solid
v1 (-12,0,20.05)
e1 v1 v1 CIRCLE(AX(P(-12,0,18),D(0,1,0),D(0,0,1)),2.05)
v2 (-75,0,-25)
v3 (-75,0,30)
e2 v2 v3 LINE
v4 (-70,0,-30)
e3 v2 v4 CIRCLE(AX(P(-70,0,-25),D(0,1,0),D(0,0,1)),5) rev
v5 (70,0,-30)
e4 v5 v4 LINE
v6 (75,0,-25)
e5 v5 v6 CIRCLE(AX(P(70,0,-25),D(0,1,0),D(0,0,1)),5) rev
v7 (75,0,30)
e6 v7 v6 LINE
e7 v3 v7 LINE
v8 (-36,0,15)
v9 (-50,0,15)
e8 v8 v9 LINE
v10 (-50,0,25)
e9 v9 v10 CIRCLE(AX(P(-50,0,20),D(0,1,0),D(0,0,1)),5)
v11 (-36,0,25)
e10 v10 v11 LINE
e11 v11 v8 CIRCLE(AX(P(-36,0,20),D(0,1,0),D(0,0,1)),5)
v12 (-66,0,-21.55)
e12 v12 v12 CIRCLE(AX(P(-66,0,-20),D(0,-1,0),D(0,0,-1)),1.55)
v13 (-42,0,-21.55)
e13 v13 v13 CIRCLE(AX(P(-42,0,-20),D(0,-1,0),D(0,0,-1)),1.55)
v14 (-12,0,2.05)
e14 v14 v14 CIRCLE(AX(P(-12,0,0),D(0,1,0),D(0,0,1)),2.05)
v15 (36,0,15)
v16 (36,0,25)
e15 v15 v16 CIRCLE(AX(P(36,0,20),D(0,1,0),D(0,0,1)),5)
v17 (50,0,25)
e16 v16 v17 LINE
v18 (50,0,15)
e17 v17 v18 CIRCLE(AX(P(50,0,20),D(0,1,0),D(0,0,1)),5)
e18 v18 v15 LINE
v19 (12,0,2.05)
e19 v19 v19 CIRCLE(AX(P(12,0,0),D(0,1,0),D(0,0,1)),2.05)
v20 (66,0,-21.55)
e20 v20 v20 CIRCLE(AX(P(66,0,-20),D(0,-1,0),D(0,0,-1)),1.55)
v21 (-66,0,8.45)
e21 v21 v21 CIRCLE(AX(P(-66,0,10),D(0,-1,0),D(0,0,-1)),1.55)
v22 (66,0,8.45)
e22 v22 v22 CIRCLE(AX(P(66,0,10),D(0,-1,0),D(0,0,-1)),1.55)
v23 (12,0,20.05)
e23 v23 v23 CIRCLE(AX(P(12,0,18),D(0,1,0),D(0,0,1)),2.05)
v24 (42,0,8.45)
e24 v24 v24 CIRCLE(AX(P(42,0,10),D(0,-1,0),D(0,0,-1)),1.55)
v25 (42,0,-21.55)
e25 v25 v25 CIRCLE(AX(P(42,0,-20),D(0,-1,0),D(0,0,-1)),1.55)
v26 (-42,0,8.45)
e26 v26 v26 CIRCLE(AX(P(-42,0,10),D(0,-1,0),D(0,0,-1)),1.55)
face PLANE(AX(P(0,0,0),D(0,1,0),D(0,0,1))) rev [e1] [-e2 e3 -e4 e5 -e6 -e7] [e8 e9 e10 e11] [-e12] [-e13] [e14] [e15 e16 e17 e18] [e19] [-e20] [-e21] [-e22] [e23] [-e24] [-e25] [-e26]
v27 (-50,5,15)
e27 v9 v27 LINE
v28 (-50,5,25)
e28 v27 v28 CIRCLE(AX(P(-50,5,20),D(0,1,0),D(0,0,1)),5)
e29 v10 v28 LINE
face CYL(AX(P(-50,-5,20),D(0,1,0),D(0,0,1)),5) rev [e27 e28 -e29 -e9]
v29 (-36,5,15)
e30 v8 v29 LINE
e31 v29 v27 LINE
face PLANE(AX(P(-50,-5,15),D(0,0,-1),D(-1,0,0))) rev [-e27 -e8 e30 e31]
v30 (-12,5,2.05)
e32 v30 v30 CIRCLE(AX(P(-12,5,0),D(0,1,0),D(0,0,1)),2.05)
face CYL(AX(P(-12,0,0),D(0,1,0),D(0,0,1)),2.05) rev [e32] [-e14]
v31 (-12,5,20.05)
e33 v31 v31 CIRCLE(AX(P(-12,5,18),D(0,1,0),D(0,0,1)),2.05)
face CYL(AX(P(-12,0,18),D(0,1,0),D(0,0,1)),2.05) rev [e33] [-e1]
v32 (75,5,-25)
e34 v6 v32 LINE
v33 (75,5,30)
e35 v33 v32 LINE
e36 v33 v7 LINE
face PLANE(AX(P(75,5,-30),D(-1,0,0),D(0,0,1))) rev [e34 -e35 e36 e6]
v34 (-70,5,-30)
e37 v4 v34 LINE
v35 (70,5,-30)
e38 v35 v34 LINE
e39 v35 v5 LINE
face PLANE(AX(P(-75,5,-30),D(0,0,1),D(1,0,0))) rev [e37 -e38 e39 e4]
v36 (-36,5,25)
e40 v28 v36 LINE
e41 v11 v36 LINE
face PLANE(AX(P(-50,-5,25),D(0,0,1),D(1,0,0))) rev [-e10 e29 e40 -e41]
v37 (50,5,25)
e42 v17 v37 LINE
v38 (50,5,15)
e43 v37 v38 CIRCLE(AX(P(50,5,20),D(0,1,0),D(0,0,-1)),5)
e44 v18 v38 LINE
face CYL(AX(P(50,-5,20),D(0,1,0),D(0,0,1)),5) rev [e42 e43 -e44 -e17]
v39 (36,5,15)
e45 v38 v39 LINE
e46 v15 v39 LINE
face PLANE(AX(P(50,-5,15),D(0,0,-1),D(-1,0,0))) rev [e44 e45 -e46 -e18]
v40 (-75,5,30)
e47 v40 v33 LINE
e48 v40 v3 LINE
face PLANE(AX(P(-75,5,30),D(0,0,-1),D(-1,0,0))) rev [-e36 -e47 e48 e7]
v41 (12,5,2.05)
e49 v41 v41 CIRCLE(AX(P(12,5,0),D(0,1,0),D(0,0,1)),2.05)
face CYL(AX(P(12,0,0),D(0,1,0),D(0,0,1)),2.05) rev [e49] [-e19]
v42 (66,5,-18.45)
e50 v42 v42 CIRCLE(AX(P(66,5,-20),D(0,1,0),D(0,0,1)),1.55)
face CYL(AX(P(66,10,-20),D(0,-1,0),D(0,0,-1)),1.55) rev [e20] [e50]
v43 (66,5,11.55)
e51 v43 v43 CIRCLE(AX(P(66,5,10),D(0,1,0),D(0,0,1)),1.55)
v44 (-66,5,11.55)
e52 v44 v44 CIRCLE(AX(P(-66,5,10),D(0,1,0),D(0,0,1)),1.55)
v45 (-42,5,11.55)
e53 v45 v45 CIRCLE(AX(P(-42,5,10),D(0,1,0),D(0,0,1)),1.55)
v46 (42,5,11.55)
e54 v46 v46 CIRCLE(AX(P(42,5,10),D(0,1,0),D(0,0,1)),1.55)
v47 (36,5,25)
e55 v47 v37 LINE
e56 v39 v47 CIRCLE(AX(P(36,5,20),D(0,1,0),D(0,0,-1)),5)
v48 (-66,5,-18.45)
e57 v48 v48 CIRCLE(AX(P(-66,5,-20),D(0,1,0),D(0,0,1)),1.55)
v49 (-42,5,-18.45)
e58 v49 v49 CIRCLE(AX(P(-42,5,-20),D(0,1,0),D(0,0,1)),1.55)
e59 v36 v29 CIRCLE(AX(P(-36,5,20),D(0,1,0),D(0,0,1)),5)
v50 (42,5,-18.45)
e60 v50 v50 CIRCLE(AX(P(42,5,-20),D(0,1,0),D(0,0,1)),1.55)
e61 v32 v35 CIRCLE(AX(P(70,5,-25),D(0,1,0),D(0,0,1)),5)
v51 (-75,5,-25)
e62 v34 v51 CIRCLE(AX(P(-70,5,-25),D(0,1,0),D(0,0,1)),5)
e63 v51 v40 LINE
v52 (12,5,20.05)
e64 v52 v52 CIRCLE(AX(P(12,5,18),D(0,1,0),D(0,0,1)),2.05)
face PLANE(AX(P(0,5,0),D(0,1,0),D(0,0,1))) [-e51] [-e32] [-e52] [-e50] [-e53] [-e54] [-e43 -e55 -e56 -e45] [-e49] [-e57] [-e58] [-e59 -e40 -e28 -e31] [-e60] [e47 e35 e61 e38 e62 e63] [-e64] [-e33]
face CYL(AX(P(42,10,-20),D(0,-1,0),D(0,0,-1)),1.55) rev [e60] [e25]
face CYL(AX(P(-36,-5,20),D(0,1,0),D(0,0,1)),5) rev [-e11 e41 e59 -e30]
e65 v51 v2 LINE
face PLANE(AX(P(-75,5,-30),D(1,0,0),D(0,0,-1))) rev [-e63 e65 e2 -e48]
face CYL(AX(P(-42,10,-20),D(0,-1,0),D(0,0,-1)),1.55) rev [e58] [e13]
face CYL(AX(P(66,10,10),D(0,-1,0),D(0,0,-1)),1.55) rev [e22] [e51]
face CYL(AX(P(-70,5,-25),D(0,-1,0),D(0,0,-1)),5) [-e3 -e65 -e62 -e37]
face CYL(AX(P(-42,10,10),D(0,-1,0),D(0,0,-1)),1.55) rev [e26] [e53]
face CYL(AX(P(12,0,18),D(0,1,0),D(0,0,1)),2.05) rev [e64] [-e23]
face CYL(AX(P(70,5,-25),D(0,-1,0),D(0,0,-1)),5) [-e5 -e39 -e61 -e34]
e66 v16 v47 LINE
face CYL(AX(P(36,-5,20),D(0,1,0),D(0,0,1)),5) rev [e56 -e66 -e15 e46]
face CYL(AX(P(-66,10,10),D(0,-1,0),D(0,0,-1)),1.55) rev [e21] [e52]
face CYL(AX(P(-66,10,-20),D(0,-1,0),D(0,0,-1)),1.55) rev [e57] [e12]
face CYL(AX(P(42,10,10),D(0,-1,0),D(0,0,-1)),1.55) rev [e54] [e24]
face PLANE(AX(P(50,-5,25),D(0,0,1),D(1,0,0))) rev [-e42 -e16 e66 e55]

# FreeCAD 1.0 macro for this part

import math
import FreeCAD as App
import Part
import Sketcher
from FreeCAD import Vector


def edges_at(feature, points):
    """Names of the edges that pass closest to the given points."""
    edges = feature.Shape.Edges
    near = lambda p: min(range(len(edges)), key=lambda i: edges[i].distToShape(Part.Vertex(*p))[0])
    return sorted({f"Edge{near(p) + 1}" for p in points})


def add_polygon(sketch, points):
    """Adds a closed chain of lines whose ends are joined by coincident constraints."""
    first, n = sketch.GeometryCount, len(points)
    for a, b in zip(points, points[1:] + points[:1]):
        sketch.addGeometry(Part.LineSegment(App.Vector(*a, 0), App.Vector(*b, 0)), False)
    for i in range(n):
        sketch.addConstraint(Sketcher.Constraint("Coincident", first + i, 2, first + (i + 1) % n, 1))

doc = App.newDocument("Part")
body = doc.addObject("PartDesign::Body", "Body")

# Sketch on XZ plane
sketch1 = body.newObject("Sketcher::SketchObject", "Sketch")
sketch1.AttachmentSupport = (doc.getObject("XZ_Plane"), [""])
sketch1.MapMode = "FlatFace"
add_polygon(sketch1, [(-75, -30), (-75, 30), (75, 30), (75, -30)])  # lines 0-3
sketch1.addConstraint([
    Sketcher.Constraint("Vertical", 0),
    Sketcher.Constraint("Horizontal", 1),
    Sketcher.Constraint("Vertical", 2),
    Sketcher.Constraint("Horizontal", 3),
    Sketcher.Constraint("Symmetric", 0, 2, 2, 2, -1, 1),
    Sketcher.Constraint("DistanceX", 1, 1, 1, 2, 150.0),
    Sketcher.Constraint("DistanceY", 0, 1, 0, 2, 60.0),
])
pad1 = body.newObject("PartDesign::Pad", "Pad")
pad1.Profile = sketch1
pad1.Length = 5
pad1.Reversed = True

# Sketch on XZ plane
sketch2 = body.newObject("Sketcher::SketchObject", "Sketch001")
sketch2.AttachmentSupport = (doc.getObject("XZ_Plane"), [""])
sketch2.MapMode = "FlatFace"
sketch2.addGeometry([
    Part.Circle(Vector(66, -20, 0), Vector(0, 0, 1), 1.6),  # 0
    Part.Circle(Vector(42, -20, 0), Vector(0, 0, 1), 1.6),  # 1
    Part.Circle(Vector(66, 10, 0), Vector(0, 0, 1), 1.6),  # 2
    Part.Circle(Vector(42, 10, 0), Vector(0, 0, 1), 1.6),  # 3
    Part.Circle(Vector(-42, -20, 0), Vector(0, 0, 1), 1.6),  # 4
    Part.Circle(Vector(-66, -20, 0), Vector(0, 0, 1), 1.6),  # 5
    Part.Circle(Vector(-42, 10, 0), Vector(0, 0, 1), 1.6),  # 6
    Part.Circle(Vector(-66, 10, 0), Vector(0, 0, 1), 1.6),  # 7
], False)
sketch2.addConstraint([
    Sketcher.Constraint("Equal", 0, 1),
    Sketcher.Constraint("Equal", 1, 2),
    Sketcher.Constraint("Equal", 2, 3),
    Sketcher.Constraint("Equal", 3, 4),
    Sketcher.Constraint("Equal", 4, 5),
    Sketcher.Constraint("Equal", 5, 6),
    Sketcher.Constraint("Equal", 6, 7),
    Sketcher.Constraint("Symmetric", 1, 3, 4, 3, -2),
    Sketcher.Constraint("Symmetric", 0, 3, 5, 3, -2),
    Sketcher.Constraint("Symmetric", 3, 3, 6, 3, -2),
    Sketcher.Constraint("Symmetric", 2, 3, 7, 3, -2),
    Sketcher.Constraint("Horizontal", 0, 3, 1, 3),
    Sketcher.Constraint("Horizontal", 2, 3, 3, 3),
    Sketcher.Constraint("Vertical", 0, 3, 2, 3),
    Sketcher.Constraint("Vertical", 1, 3, 3, 3),
    Sketcher.Constraint("Diameter", 0, 3.1),
    Sketcher.Constraint("DistanceX", -1, 1, 0, 3, 66.0),
    Sketcher.Constraint("DistanceY", 0, 3, -1, 1, 20.0),
    Sketcher.Constraint("DistanceX", -1, 1, 1, 3, 42.0),
    Sketcher.Constraint("DistanceY", -1, 1, 2, 3, 10.0),
])
pocket1 = body.newObject("PartDesign::Pocket", "Pocket")
pocket1.Profile = sketch2
pocket1.Length = 10

# Sketch on XZ plane
sketch3 = body.newObject("Sketcher::SketchObject", "Sketch002")
sketch3.AttachmentSupport = (doc.getObject("XZ_Plane"), [""])
sketch3.MapMode = "FlatFace"
sketch3.AttachmentOffset = App.Placement(Vector(0, 0, -5), App.Rotation())
sketch3.addGeometry([
    Part.Circle(Vector(-12, 0, 0), Vector(0, 0, 1), 2),
    Part.Circle(Vector(12, 0, 0), Vector(0, 0, 1), 2),
    Part.Circle(Vector(-12, 18, 0), Vector(0, 0, 1), 2),
    Part.Circle(Vector(12, 18, 0), Vector(0, 0, 1), 2),
], False)
sketch3.addConstraint([
    Sketcher.Constraint("Equal", 0, 1),
    Sketcher.Constraint("Equal", 1, 2),
    Sketcher.Constraint("Equal", 2, 3),
    Sketcher.Constraint("Symmetric", 0, 3, 1, 3, -1, 1),
    Sketcher.Constraint("Symmetric", 2, 3, 3, 3, -2),
    Sketcher.Constraint("PointOnObject", 0, 3, -1),
    Sketcher.Constraint("Vertical", 0, 3, 2, 3),
    Sketcher.Constraint("Diameter", 0, 4.1),
    Sketcher.Constraint("DistanceX", 0, 3, -1, 1, 12.0),
    Sketcher.Constraint("DistanceY", -1, 1, 2, 3, 18.0),
])
pocket2 = body.newObject("PartDesign::Pocket", "Pocket001")
pocket2.Profile = sketch3
pocket2.Type = "ThroughAll"
pocket2.Reversed = True
doc.recompute()

fillet = body.newObject("PartDesign::Fillet", "Fillet")
fillet.Base = (pocket2, edges_at(pocket2, [(-75, 2.5, -30), (75, 2.5, -30)]))
fillet.Radius = 5

# Sketch on XZ plane
sketch4 = body.newObject("Sketcher::SketchObject", "Sketch003")
sketch4.AttachmentSupport = (doc.getObject("XZ_Plane"), [""])
sketch4.MapMode = "FlatFace"
sketch4.AttachmentOffset = App.Placement(Vector(0, 0, -5), App.Rotation())
sketch4.addGeometry([
    Part.LineSegment(Vector(-36, 15, 0), Vector(-50, 15, 0)),  # 0
    Part.ArcOfCircle(Part.Circle(Vector(-50, 20, 0), Vector(0, 0, 1), 5), math.radians(90), math.radians(270)),  # 1
    Part.LineSegment(Vector(-50, 25, 0), Vector(-36, 25, 0)),  # 2
    Part.ArcOfCircle(Part.Circle(Vector(-36, 20, 0), Vector(0, 0, 1), 5), math.radians(-90), math.radians(90)),  # 3
    Part.LineSegment(Vector(50, 15, 0), Vector(36, 15, 0)),  # 4
    Part.ArcOfCircle(Part.Circle(Vector(36, 20, 0), Vector(0, 0, 1), 5), math.radians(90), math.radians(270)),  # 5
    Part.LineSegment(Vector(36, 25, 0), Vector(50, 25, 0)),  # 6
    Part.ArcOfCircle(Part.Circle(Vector(50, 20, 0), Vector(0, 0, 1), 5), math.radians(-90), math.radians(90)),  # 7
], False)
sketch4.addConstraint([
    Sketcher.Constraint("Tangent", 0, 2, 1, 2),
    Sketcher.Constraint("Tangent", 1, 1, 2, 1),
    Sketcher.Constraint("Tangent", 2, 2, 3, 2),
    Sketcher.Constraint("Tangent", 3, 1, 0, 1),
    Sketcher.Constraint("Tangent", 4, 2, 5, 2),
    Sketcher.Constraint("Tangent", 5, 1, 6, 1),
    Sketcher.Constraint("Tangent", 6, 2, 7, 2),
    Sketcher.Constraint("Tangent", 7, 1, 4, 1),
    Sketcher.Constraint("Horizontal", 0),
    Sketcher.Constraint("Horizontal", 2),
    Sketcher.Constraint("Horizontal", 4),
    Sketcher.Constraint("Horizontal", 6),
    Sketcher.Constraint("Equal", 3, 5),
    Sketcher.Constraint("Symmetric", 3, 3, 5, 3, -2),
    Sketcher.Constraint("Equal", 2, 4),
    Sketcher.Constraint("Radius", 1, 5.0),
    Sketcher.Constraint("DistanceX", 0, 2, 0, 1, 14.0),
    Sketcher.Constraint("DistanceX", 1, 3, -1, 1, 50.0),
    Sketcher.Constraint("DistanceY", -1, 1, 1, 3, 20.0),
])
pocket3 = body.newObject("PartDesign::Pocket", "Pocket002")
pocket3.Profile = sketch4
pocket3.Length = 10
pocket3.Reversed = True

doc.recompute()
